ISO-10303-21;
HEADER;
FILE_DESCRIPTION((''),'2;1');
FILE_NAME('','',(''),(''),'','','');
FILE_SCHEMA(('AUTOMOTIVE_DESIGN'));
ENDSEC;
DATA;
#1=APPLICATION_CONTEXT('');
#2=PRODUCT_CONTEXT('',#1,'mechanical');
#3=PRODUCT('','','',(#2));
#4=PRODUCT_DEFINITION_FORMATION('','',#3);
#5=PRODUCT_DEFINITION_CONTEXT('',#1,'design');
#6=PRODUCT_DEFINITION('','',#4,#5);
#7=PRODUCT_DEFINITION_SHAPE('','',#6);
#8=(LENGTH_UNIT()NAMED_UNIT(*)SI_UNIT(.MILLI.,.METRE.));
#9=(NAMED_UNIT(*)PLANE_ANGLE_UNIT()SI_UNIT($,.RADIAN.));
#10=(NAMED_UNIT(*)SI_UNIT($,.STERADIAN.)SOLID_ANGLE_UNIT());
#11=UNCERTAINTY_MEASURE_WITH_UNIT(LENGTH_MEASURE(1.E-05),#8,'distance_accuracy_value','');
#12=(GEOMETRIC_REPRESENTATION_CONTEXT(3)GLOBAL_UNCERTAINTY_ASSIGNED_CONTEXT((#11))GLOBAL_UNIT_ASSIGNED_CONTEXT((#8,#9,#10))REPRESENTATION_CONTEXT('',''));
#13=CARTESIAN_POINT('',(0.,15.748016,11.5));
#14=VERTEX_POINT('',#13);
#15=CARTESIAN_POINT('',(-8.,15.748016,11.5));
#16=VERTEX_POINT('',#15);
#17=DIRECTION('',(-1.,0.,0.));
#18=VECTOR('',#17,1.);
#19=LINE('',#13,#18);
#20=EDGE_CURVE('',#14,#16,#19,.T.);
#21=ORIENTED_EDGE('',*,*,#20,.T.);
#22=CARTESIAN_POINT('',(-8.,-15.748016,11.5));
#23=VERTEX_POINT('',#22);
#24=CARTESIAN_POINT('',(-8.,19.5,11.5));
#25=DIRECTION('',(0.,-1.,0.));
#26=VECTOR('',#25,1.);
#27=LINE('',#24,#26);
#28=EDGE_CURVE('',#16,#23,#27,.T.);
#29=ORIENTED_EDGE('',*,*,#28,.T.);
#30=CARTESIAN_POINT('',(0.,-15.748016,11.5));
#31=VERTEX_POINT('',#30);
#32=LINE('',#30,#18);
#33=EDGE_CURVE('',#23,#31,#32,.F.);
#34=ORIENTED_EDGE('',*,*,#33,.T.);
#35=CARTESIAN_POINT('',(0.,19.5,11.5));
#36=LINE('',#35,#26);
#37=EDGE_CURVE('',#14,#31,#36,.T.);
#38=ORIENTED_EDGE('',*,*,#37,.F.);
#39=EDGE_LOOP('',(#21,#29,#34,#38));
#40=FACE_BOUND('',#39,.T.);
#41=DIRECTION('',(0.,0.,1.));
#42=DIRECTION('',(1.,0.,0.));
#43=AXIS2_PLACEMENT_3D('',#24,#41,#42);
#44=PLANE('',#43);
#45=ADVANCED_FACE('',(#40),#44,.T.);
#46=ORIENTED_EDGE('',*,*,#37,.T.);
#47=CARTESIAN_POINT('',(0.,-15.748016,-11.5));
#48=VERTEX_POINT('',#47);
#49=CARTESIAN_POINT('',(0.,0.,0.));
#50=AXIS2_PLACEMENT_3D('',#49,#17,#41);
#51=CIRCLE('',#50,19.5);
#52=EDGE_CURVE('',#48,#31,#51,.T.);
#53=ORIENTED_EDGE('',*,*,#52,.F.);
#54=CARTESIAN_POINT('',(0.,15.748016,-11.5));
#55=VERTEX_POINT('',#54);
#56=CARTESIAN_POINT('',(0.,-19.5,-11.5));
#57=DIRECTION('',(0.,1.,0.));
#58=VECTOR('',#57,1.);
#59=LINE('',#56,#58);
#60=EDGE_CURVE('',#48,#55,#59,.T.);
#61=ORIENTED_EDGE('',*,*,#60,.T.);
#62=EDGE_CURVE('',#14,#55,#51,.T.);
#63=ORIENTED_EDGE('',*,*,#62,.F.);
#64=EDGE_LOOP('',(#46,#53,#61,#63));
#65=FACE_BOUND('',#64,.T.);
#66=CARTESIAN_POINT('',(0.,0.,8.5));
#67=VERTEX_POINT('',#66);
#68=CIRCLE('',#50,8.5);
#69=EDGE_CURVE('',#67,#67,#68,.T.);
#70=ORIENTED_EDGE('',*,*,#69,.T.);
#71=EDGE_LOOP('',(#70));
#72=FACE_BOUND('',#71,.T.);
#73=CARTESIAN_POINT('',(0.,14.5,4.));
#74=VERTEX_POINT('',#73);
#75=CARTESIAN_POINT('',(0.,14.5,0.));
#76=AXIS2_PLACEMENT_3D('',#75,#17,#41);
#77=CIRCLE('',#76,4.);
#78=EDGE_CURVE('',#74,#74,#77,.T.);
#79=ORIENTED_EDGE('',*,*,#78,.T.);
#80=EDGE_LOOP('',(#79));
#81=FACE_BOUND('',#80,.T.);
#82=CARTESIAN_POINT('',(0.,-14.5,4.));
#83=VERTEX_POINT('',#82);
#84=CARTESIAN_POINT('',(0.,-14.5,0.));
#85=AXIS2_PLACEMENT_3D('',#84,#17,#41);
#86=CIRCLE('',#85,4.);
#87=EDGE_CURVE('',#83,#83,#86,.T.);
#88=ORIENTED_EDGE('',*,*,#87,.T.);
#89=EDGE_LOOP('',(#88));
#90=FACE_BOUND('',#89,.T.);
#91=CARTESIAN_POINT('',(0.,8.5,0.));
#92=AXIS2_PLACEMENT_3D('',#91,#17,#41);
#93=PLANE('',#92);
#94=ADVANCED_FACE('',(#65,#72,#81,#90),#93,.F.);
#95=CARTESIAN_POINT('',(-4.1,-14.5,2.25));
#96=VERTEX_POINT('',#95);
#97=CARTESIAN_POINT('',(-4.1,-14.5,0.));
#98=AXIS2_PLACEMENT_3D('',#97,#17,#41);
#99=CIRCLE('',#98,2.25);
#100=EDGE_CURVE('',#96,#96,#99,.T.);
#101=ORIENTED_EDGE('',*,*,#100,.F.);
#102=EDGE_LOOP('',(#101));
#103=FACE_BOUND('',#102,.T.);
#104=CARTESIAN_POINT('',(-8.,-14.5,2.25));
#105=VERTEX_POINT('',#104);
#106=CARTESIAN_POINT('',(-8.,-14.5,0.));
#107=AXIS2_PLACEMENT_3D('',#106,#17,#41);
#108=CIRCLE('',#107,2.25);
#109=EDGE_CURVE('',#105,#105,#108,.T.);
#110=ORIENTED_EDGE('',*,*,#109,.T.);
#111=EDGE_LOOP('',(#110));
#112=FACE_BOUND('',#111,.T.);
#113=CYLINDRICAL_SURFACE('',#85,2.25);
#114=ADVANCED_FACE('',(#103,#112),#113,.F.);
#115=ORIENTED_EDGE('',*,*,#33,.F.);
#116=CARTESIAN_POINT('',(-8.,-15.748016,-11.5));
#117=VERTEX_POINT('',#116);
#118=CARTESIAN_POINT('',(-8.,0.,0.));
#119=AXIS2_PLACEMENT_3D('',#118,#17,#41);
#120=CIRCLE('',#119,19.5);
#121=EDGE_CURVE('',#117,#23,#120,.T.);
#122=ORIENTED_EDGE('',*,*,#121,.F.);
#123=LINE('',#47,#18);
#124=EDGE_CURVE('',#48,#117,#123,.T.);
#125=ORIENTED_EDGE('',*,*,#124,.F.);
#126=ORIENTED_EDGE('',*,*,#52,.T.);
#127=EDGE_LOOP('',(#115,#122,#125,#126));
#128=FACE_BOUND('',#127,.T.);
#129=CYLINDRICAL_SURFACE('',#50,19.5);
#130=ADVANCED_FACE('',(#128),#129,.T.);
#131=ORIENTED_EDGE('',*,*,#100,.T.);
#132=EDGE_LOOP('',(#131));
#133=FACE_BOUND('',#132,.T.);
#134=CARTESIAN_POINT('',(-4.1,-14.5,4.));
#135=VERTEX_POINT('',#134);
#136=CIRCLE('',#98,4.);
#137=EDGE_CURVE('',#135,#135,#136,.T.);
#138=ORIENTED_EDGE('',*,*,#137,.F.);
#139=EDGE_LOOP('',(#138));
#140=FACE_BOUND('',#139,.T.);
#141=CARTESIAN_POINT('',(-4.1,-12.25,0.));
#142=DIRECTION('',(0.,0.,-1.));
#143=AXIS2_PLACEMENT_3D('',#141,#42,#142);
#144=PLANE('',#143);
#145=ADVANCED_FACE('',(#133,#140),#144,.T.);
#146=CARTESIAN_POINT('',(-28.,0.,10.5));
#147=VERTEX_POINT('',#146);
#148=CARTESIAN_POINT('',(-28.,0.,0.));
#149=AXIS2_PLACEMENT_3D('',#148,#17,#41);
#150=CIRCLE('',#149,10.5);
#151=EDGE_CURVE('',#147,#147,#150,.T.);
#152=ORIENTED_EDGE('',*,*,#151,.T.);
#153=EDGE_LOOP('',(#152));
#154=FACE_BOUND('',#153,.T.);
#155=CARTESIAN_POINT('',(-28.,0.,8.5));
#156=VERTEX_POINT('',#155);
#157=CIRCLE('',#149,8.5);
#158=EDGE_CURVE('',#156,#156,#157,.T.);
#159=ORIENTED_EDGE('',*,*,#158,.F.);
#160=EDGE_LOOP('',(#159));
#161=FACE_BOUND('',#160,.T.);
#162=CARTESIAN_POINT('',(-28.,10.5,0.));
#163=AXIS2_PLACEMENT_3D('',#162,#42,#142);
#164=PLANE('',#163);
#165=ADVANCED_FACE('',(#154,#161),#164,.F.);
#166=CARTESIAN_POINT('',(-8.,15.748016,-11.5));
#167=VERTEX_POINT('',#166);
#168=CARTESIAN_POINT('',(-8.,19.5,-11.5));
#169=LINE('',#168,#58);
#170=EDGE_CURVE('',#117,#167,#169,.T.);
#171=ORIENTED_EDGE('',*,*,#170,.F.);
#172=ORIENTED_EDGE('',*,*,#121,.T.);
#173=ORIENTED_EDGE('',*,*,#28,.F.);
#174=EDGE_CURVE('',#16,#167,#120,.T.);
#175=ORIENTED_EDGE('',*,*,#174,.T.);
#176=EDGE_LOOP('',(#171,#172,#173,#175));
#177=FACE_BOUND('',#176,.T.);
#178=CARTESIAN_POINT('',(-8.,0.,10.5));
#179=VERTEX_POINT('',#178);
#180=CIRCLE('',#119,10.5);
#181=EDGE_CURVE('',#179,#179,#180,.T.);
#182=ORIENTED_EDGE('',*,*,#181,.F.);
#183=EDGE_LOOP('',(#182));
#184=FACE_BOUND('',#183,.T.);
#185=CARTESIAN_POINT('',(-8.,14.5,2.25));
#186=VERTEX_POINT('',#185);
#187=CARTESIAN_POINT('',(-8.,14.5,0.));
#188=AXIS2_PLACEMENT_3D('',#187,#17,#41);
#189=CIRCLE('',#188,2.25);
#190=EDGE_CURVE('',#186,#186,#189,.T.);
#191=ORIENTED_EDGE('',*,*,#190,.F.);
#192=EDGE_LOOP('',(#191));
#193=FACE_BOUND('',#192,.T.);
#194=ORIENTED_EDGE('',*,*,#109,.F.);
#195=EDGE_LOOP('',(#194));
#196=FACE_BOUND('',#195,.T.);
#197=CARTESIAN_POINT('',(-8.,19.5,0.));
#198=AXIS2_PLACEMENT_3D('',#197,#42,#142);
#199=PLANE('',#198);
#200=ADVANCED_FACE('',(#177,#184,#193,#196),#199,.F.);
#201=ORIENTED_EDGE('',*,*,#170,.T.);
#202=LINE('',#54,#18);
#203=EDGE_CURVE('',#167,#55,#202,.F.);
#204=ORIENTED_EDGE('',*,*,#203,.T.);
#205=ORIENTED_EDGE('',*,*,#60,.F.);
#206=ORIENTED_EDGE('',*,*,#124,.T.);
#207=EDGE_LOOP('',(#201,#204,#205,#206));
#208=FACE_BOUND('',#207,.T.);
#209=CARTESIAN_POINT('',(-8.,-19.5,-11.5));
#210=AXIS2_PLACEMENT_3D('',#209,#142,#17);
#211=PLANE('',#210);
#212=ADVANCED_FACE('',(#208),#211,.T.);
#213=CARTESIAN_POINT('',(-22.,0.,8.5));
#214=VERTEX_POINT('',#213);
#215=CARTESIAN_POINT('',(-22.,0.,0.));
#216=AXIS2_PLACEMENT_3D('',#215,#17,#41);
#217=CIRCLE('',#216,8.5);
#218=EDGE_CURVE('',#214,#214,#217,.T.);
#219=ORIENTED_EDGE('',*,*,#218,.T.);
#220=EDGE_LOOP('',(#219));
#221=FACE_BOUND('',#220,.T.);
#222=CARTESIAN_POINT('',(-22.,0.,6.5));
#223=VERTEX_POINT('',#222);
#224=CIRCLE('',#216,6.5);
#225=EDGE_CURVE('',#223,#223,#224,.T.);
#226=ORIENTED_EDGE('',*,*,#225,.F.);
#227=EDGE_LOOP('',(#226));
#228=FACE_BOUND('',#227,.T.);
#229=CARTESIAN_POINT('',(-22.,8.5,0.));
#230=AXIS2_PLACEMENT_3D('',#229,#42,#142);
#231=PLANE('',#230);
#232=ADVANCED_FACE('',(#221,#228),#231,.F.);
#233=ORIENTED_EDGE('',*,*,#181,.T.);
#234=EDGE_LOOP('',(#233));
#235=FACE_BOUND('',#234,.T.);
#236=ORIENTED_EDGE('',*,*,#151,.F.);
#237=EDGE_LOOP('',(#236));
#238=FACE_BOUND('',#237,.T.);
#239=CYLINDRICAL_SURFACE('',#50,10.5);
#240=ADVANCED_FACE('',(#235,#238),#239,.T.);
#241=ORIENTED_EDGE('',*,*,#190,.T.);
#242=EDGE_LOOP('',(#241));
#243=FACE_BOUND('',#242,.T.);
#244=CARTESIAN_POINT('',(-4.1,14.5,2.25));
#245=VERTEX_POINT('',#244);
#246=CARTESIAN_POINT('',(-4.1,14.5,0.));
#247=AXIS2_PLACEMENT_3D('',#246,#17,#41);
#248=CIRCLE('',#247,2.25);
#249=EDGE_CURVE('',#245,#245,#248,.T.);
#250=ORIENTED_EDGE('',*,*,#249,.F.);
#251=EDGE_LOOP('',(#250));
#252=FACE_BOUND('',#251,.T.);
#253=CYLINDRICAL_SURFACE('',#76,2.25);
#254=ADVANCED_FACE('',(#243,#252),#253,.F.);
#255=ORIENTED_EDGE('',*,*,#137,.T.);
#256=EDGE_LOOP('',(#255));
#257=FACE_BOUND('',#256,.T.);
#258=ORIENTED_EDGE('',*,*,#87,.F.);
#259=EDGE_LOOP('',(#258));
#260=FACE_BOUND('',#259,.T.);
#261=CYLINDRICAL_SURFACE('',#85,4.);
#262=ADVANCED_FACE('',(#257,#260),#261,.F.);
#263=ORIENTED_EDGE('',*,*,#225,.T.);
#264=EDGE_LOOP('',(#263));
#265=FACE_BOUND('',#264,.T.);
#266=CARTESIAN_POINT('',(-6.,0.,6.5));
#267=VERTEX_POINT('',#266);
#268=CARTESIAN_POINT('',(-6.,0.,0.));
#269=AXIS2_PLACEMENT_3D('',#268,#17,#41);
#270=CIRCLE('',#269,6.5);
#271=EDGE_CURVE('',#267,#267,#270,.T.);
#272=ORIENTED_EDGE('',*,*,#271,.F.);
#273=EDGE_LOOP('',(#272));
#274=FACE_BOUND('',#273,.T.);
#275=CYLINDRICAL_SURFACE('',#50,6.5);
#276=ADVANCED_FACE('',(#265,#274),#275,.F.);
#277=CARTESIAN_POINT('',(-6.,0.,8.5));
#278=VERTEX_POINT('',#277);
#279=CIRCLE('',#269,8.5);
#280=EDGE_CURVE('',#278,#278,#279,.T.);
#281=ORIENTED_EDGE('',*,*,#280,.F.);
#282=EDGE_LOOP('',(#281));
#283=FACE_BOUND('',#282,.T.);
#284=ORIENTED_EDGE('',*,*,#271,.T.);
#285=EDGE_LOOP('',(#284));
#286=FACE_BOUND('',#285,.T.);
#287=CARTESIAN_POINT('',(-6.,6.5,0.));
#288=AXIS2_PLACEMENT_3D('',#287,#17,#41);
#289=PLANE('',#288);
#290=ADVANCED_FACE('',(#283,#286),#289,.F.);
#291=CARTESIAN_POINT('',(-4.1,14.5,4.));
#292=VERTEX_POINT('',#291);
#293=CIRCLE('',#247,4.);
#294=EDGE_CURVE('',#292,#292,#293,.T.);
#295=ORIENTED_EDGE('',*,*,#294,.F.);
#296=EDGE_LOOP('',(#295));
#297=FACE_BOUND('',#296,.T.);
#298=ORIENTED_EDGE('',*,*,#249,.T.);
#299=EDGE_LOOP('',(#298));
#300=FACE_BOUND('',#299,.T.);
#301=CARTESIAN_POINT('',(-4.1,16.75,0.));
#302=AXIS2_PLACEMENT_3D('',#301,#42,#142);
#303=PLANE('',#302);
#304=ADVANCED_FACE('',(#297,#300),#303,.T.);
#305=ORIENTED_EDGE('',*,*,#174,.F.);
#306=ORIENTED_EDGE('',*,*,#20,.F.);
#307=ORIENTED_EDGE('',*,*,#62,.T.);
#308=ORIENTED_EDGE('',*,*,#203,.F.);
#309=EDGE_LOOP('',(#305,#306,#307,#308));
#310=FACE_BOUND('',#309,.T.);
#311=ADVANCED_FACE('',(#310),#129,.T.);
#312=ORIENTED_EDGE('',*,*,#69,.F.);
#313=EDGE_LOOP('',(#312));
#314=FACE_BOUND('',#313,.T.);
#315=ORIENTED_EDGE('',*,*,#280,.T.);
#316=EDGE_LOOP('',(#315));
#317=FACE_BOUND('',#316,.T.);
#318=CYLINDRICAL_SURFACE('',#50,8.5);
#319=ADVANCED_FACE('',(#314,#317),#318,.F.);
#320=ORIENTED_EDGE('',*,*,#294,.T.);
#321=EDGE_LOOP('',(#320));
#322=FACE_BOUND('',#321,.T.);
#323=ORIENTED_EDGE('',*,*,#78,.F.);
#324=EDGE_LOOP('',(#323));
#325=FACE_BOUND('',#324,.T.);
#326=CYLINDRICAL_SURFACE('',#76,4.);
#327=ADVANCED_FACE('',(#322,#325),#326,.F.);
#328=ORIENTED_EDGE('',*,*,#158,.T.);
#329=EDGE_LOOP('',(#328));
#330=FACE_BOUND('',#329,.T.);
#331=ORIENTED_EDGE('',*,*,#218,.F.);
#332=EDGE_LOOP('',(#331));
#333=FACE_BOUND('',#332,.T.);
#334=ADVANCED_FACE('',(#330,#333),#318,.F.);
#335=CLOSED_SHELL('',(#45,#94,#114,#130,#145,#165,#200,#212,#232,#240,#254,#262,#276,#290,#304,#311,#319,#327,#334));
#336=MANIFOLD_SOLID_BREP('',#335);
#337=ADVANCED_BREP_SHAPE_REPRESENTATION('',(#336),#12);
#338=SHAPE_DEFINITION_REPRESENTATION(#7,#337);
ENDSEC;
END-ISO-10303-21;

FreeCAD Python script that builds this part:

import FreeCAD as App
import Part
import Sketcher
Q = App.Units.Quantity


def add_polygon(sketch, points):
    """Adds a closed chain of lines whose ends are joined by coincident constraints."""
    first, n = sketch.GeometryCount, len(points)
    for a, b in zip(points, points[1:] + points[:1]):
        sketch.addGeometry(Part.LineSegment(App.Vector(*a, 0), App.Vector(*b, 0)), False)
    for i in range(n):
        sketch.addConstraint(Sketcher.Constraint("Coincident", first + i, 2, first + (i + 1) % n, 1))

doc = App.newDocument("Part")
body = doc.addObject("PartDesign::Body", "Body")

sketch1 = body.newObject("Sketcher::SketchObject", "Sketch")
sketch1.AttachmentSupport = (doc.getObject("XY_Plane"), [""])
sketch1.MapMode = "FlatFace"
add_polygon(sketch1, [(-28, 8.5), (-22, 8.5), (-22, 6.5), (-6, 6.5), (-6, 8.5), (0, 8.5), (0, 19.5), (-8, 19.5), (-8, 10.5), (-28, 10.5)])
sketch1.addConstraint(Sketcher.Constraint("Horizontal", 0))
sketch1.addConstraint(Sketcher.Constraint("Vertical", 1))
sketch1.addConstraint(Sketcher.Constraint("Horizontal", 2))
sketch1.addConstraint(Sketcher.Constraint("Vertical", 3))
sketch1.addConstraint(Sketcher.Constraint("Horizontal", 4))
sketch1.addConstraint(Sketcher.Constraint("Vertical", 5))
sketch1.addConstraint(Sketcher.Constraint("Horizontal", 6))
sketch1.addConstraint(Sketcher.Constraint("Vertical", 7))
sketch1.addConstraint(Sketcher.Constraint("Horizontal", 8))
sketch1.addConstraint(Sketcher.Constraint("Vertical", 9))
sketch1.addConstraint(Sketcher.Constraint("PointOnObject", 4, 2, -2))
sketch1.addConstraint(Sketcher.Constraint("Horizontal", 0, 2, 3, 2))
sketch1.addConstraint(Sketcher.Constraint("Equal", 0, 4))
sketch1.addConstraint(Sketcher.Constraint("Equal", 3, 9))
sketch1.addConstraint(Sketcher.Constraint("DistanceX", 0, 1, 0, 2, Q("6 mm")))
sketch1.addConstraint(Sketcher.Constraint("DistanceX", 2, 1, 2, 2, Q("16 mm")))
sketch1.addConstraint(Sketcher.Constraint("DistanceX", 6, 2, 6, 1, Q("8 mm")))
sketch1.addConstraint(Sketcher.Constraint("DistanceY", 1, 2, 1, 1, Q("2 mm")))
sketch1.addConstraint(Sketcher.Constraint("DistanceY", 5, 1, 5, 2, Q("11 mm")))
sketch1.addConstraint(Sketcher.Constraint("DistanceY", -1, 1, 0, 2, Q("8.5 mm")))
revolution = body.newObject("PartDesign::Revolution", "Revolution")
revolution.Profile = sketch1
revolution.ReferenceAxis = (sketch1, ["H_Axis"])
revolution.Angle = 360

sketch2 = body.newObject("Sketcher::SketchObject", "Sketch001")
sketch2.AttachmentSupport = (doc.getObject("XY_Plane"), [""])
sketch2.MapMode = "FlatFace"
add_polygon(sketch2, [(-8, 16.75), (-8, 14.5), (0, 14.5), (0, 18.5), (-4.1, 18.5), (-4.1, 16.75)])
sketch2.addGeometry(Part.LineSegment(App.Vector(0, 14.5, 0), App.Vector(-8, 14.5, 0)), True)
sketch2.addConstraint(Sketcher.Constraint("Vertical", 0))
sketch2.addConstraint(Sketcher.Constraint("Horizontal", 1))
sketch2.addConstraint(Sketcher.Constraint("Vertical", 2))
sketch2.addConstraint(Sketcher.Constraint("Horizontal", 3))
sketch2.addConstraint(Sketcher.Constraint("Vertical", 4))
sketch2.addConstraint(Sketcher.Constraint("Horizontal", 5))
sketch2.addConstraint(Sketcher.Constraint("Horizontal", 6))
sketch2.addConstraint(Sketcher.Constraint("Coincident", 6, 1, 1, 2))
sketch2.addConstraint(Sketcher.Constraint("PointOnObject", 1, 2, -2))
sketch2.addConstraint(Sketcher.Constraint("Vertical", 5, 2, 6, 2))
sketch2.addConstraint(Sketcher.Constraint("DistanceX", 1, 1, 1, 2, Q("8 mm")))
sketch2.addConstraint(Sketcher.Constraint("DistanceY", 2, 1, 2, 2, Q("4 mm")))
sketch2.addConstraint(Sketcher.Constraint("DistanceX", 3, 2, 3, 1, Q("4.1 mm")))
sketch2.addConstraint(Sketcher.Constraint("DistanceY", 0, 2, 0, 1, Q("2.25 mm")))
sketch2.addConstraint(Sketcher.Constraint("DistanceY", -1, 1, 0, 2, Q("14.5 mm")))
groove = body.newObject("PartDesign::Groove", "Groove")
groove.Profile = sketch2
groove.ReferenceAxis = (sketch2, ["Axis0"])
groove.Angle = 360

sketch3 = body.newObject("Sketcher::SketchObject", "Sketch002")
sketch3.AttachmentSupport = (doc.getObject("XY_Plane"), [""])
sketch3.MapMode = "FlatFace"
add_polygon(sketch3, [(-8, -12.25), (-8, -14.5), (0, -14.5), (0, -10.5), (-4.1, -10.5), (-4.1, -12.25)])
sketch3.addGeometry(Part.LineSegment(App.Vector(0, -14.5, 0), App.Vector(-8, -14.5, 0)), True)
sketch3.addConstraint(Sketcher.Constraint("Vertical", 0))
sketch3.addConstraint(Sketcher.Constraint("Horizontal", 1))
sketch3.addConstraint(Sketcher.Constraint("Vertical", 2))
sketch3.addConstraint(Sketcher.Constraint("Horizontal", 3))
sketch3.addConstraint(Sketcher.Constraint("Vertical", 4))
sketch3.addConstraint(Sketcher.Constraint("Horizontal", 5))
sketch3.addConstraint(Sketcher.Constraint("Horizontal", 6))
sketch3.addConstraint(Sketcher.Constraint("Coincident", 6, 1, 1, 2))
sketch3.addConstraint(Sketcher.Constraint("PointOnObject", 1, 2, -2))
sketch3.addConstraint(Sketcher.Constraint("Vertical", 5, 2, 6, 2))
sketch3.addConstraint(Sketcher.Constraint("DistanceX", 1, 1, 1, 2, Q("8 mm")))
sketch3.addConstraint(Sketcher.Constraint("DistanceY", 2, 1, 2, 2, Q("4 mm")))
sketch3.addConstraint(Sketcher.Constraint("DistanceX", 3, 2, 3, 1, Q("4.1 mm")))
sketch3.addConstraint(Sketcher.Constraint("DistanceY", 0, 2, 0, 1, Q("2.25 mm")))
sketch3.addConstraint(Sketcher.Constraint("DistanceY", 0, 2, -1, 1, Q("14.5 mm")))
groove2 = body.newObject("PartDesign::Groove", "Groove001")
groove2.Profile = sketch3
groove2.ReferenceAxis = (sketch3, ["Axis0"])
groove2.Angle = 360

sketch4 = body.newObject("Sketcher::SketchObject", "Sketch003")
sketch4.AttachmentSupport = (doc.getObject("YZ_Plane"), [""])
sketch4.MapMode = "FlatFace"
sketch4.addGeometry(Part.Circle(App.Vector(0, 0, 0), App.Vector(0, 0, 1), 100), False)
add_polygon(sketch4, [(-19.5, -11.5), (-19.5, 11.5), (19.5, 11.5), (19.5, -11.5)])
sketch4.addConstraint(Sketcher.Constraint("Vertical", 1))
sketch4.addConstraint(Sketcher.Constraint("Horizontal", 2))
sketch4.addConstraint(Sketcher.Constraint("Vertical", 3))
sketch4.addConstraint(Sketcher.Constraint("Horizontal", 4))
sketch4.addConstraint(Sketcher.Constraint("Coincident", 0, 3, -1, 1))
sketch4.addConstraint(Sketcher.Constraint("Symmetric", 1, 2, 3, 2, -1, 1))
sketch4.addConstraint(Sketcher.Constraint("Diameter", 0, Q("200 mm")))
sketch4.addConstraint(Sketcher.Constraint("DistanceX", 2, 1, 2, 2, Q("39 mm")))
sketch4.addConstraint(Sketcher.Constraint("DistanceY", 1, 1, 1, 2, Q("23 mm")))
pocket1 = body.newObject("PartDesign::Pocket", "Pocket")
pocket1.Profile = sketch4
pocket1.Length = 8

doc.recompute()
